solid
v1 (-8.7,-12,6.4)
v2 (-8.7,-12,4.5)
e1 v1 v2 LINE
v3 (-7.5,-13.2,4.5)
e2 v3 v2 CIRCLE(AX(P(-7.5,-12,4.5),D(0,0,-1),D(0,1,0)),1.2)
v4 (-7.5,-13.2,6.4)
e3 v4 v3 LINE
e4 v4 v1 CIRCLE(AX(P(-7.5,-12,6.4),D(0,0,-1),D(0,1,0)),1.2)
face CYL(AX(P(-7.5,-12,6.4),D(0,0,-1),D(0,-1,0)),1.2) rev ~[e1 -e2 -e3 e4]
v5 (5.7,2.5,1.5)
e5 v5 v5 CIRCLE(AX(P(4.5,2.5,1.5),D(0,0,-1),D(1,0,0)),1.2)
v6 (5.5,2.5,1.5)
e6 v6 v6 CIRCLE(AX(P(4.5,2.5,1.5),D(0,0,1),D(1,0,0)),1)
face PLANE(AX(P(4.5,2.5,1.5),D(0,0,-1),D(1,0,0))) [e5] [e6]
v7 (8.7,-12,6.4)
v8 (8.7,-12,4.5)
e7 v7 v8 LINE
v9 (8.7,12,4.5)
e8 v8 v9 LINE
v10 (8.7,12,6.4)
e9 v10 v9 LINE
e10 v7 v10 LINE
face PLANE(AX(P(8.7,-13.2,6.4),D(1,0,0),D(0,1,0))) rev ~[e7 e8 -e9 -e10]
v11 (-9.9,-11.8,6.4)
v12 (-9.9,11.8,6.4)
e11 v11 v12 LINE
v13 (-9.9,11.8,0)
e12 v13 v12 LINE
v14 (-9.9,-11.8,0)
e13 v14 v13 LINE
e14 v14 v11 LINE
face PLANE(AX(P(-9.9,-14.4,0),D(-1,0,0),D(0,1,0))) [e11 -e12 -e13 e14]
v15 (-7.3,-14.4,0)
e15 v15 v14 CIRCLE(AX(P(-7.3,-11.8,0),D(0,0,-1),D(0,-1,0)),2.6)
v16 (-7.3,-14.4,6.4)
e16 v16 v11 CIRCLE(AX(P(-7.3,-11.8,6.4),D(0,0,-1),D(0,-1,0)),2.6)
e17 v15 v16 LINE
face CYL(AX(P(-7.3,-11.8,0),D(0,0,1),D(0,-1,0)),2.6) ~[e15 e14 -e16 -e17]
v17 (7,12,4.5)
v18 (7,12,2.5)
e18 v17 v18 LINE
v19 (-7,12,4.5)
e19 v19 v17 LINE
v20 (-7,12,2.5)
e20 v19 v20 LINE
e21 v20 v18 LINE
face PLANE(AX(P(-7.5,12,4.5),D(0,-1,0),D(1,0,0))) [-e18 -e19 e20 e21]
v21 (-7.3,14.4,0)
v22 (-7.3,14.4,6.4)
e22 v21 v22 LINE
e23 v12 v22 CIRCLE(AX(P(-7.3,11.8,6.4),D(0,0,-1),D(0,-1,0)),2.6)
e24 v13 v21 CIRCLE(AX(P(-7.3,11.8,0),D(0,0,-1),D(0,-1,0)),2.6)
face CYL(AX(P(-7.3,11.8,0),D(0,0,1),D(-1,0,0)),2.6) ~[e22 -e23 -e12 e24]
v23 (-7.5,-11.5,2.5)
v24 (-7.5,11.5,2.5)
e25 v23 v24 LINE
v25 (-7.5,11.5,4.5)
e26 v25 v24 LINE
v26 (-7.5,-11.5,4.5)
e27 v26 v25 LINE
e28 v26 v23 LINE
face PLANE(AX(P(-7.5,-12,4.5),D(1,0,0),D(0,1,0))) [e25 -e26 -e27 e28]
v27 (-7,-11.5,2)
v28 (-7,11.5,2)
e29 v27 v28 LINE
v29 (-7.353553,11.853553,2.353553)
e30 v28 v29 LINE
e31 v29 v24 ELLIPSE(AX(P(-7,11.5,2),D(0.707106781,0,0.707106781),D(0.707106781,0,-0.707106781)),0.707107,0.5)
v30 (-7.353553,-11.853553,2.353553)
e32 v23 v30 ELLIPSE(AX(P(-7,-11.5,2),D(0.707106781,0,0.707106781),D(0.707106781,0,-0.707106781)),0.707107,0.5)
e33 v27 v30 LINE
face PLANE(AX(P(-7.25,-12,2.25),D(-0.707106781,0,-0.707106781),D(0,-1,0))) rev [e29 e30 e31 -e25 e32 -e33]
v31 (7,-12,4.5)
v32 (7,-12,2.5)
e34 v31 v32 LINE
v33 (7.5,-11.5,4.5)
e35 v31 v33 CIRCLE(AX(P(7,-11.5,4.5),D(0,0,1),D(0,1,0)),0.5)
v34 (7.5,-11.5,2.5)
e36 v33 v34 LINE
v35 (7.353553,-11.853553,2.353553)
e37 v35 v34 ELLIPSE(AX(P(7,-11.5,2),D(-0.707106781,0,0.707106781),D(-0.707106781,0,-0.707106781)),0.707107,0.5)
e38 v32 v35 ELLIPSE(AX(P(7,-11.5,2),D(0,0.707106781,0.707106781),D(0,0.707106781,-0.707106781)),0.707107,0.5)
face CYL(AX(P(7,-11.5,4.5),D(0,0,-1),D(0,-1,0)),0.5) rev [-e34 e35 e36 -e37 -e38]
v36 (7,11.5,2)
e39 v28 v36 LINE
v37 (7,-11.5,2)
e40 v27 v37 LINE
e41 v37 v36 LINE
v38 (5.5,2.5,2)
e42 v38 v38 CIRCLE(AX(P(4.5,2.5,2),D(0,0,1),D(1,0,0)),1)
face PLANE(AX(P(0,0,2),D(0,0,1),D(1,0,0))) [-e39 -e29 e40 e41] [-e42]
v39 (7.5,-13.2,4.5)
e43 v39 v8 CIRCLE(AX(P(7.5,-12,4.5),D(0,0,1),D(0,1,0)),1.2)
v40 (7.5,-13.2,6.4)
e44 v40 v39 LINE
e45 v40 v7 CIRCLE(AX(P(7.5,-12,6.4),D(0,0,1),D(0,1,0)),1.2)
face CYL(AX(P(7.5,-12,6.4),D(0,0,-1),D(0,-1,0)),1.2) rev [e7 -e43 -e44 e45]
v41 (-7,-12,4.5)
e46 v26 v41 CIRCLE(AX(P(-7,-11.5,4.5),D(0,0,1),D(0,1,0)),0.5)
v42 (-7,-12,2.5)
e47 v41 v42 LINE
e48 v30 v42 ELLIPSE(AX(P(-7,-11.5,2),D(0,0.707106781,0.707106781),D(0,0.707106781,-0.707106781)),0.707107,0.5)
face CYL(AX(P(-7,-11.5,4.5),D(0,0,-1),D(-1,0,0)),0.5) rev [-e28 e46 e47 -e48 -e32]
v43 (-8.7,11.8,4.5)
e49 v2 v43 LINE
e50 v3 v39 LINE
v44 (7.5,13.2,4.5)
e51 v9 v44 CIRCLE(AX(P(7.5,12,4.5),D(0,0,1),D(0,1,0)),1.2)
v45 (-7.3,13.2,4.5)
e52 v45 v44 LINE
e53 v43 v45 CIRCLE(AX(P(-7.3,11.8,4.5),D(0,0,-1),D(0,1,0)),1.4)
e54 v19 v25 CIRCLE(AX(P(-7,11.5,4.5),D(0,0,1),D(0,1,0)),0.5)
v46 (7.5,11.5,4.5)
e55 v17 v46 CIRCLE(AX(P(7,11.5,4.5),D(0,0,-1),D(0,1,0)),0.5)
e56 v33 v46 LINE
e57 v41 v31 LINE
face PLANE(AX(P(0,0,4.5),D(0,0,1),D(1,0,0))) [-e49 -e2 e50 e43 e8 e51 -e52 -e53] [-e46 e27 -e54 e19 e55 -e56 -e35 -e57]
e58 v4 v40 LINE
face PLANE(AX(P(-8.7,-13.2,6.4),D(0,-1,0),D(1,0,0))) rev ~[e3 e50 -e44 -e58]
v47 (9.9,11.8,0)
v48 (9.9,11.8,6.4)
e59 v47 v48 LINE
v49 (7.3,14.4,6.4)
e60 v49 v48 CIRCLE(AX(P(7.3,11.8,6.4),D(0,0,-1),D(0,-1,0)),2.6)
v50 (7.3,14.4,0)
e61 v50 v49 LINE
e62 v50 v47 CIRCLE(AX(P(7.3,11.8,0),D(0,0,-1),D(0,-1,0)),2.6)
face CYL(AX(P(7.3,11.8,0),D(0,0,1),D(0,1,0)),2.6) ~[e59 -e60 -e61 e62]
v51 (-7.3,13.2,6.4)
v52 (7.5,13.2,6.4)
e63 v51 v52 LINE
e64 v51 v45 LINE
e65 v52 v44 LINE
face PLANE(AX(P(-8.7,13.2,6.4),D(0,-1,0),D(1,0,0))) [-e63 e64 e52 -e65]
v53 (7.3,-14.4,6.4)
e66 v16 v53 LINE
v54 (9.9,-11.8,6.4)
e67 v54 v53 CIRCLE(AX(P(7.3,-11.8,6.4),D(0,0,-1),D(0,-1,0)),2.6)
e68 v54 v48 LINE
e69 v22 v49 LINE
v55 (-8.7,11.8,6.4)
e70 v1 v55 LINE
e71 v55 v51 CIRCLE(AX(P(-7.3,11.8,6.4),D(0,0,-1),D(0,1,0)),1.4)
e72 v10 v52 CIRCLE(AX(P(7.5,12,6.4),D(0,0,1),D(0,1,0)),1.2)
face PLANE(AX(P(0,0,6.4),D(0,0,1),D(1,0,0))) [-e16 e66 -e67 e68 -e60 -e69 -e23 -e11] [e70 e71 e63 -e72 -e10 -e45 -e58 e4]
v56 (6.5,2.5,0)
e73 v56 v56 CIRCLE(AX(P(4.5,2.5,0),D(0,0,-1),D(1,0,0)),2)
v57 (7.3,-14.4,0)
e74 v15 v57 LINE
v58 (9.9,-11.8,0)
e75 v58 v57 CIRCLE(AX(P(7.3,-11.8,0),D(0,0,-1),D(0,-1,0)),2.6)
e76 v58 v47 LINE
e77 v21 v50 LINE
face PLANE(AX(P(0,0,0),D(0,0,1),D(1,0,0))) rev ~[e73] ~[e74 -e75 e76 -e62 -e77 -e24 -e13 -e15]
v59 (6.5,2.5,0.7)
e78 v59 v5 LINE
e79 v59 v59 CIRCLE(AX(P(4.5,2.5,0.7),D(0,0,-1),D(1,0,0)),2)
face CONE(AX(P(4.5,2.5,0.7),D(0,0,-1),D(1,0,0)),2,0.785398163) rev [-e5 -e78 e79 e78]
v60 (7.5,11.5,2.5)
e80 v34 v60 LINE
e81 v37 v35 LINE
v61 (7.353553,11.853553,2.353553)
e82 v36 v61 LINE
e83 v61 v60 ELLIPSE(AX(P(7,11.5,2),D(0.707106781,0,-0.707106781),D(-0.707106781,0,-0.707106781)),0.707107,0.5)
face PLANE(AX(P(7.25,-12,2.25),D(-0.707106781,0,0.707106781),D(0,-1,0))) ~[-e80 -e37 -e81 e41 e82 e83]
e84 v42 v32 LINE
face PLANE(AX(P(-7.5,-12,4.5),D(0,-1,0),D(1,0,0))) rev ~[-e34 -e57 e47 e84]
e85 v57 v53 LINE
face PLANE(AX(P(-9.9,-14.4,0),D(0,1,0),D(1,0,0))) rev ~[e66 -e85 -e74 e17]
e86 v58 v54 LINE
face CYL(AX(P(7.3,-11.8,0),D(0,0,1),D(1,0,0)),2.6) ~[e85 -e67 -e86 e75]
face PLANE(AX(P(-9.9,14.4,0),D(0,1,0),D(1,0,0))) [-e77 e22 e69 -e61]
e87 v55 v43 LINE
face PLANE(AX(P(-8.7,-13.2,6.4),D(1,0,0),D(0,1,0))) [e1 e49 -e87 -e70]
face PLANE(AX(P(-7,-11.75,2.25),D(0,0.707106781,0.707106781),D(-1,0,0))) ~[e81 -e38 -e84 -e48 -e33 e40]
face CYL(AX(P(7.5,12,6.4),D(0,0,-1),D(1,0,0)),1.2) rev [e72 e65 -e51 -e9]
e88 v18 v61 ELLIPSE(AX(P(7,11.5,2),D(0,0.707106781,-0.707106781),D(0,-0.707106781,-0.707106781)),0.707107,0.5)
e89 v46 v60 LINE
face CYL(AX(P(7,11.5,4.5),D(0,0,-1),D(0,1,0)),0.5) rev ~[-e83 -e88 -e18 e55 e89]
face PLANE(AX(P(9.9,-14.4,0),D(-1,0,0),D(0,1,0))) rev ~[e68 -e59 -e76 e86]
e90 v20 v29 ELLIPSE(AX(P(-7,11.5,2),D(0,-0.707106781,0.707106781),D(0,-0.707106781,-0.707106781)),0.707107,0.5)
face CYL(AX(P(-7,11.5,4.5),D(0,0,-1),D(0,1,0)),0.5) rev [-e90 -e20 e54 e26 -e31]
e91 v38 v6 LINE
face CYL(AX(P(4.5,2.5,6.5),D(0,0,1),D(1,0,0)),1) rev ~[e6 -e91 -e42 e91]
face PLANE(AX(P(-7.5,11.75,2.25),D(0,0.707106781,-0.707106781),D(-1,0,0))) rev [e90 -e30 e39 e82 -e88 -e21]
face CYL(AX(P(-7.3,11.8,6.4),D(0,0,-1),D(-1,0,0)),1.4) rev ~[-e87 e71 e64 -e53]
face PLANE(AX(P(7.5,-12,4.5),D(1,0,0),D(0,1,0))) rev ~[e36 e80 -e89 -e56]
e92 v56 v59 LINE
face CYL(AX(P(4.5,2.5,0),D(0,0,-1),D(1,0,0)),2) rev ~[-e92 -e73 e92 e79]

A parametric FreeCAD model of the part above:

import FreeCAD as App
import Part
import Sketcher

V = App.Vector


def edges_at(feature, points):
    """Names of the edges that pass closest to the given points."""
    edges = feature.Shape.Edges
    near = lambda p: min(range(len(edges)), key=lambda i: edges[i].distToShape(Part.Vertex(*p))[0])
    return sorted({f"Edge{near(p) + 1}" for p in points})


def add_polygon(sketch, points):
    """Adds a closed chain of lines whose ends are joined by coincident constraints."""
    first, n = sketch.GeometryCount, len(points)
    for a, b in zip(points, points[1:] + points[:1]):
        sketch.addGeometry(Part.LineSegment(App.Vector(*a, 0), App.Vector(*b, 0)), False)
    for i in range(n):
        sketch.addConstraint(Sketcher.Constraint("Coincident", first + i, 2, first + (i + 1) % n, 1))

doc = App.newDocument("Part")
params = doc.addObject("Spreadsheet::Sheet", "Params")
for row, (alias, value) in enumerate([
    ("sketch1_width", "19.8 mm"),
    ("sketch1_height", "28.8 mm"),
    ("pad1_length", "6.4 mm"),
    ("sketch2_width", "17.4 mm"),
    ("sketch2_height", "26.4 mm"),
    ("pocket1_length", "1.9 mm"),
    ("sketch3_width", "15 mm"),
    ("sketch3_height", "24 mm"),
    ("pocket2_length", "2.5 mm"),
    ("sketch4_diameter", "2 mm"),
    ("pocket3_length", "6.5 mm"),
    ("chamfer_size", "0.5 mm"),
    ("chamfer2_size", "0.5 mm"),
    ("chamfer3_size", "0.5 mm"),
    ("chamfer4_size", "0.5 mm"),
    ("fillet_radius", "1.4 mm"),
    ("fillet2_radius", "0.5 mm"),
    ("fillet3_radius", "2.6 mm"),
    ("fillet4_radius", "0.5 mm"),
    ("fillet5_radius", "0.5 mm"),
    ("fillet6_radius", "0.5 mm"),
    ("fillet7_radius", "1.2 mm"),
    ("fillet8_radius", "1.2 mm"),
    ("fillet9_radius", "1.2 mm"),
    ("fillet10_radius", "2.6 mm"),
    ("fillet11_radius", "2.6 mm"),
    ("fillet12_radius", "2.6 mm"),
    ("sketch5_diameter", "4 mm"),
    ("pocket4_length", "1.5 mm"),
    ("chamfer5_size", "0.8 mm"),
], start=1):
    params.set(f"A{row}", alias)
    params.set(f"B{row}", "=" + value)
    params.setAlias(f"B{row}", alias)

body = doc.addObject("PartDesign::Body", "Body")

# Sketch on XY plane
sketch1 = body.newObject("Sketcher::SketchObject", "Sketch")
sketch1.AttachmentSupport = (doc.getObject("XY_Plane"), [""])
sketch1.MapMode = "FlatFace"
add_polygon(sketch1, [(-10, 14), (-10, -14), (10, -14), (10, 14)])  # lines 0-3
sketch1.addConstraint(Sketcher.Constraint("Vertical", 0))
sketch1.addConstraint(Sketcher.Constraint("Horizontal", 1))
sketch1.addConstraint(Sketcher.Constraint("Vertical", 2))
sketch1.addConstraint(Sketcher.Constraint("Horizontal", 3))
sketch1.addConstraint(Sketcher.Constraint("Symmetric", 0, 2, 2, 2, -1, 1))
sketch1.addConstraint(Sketcher.Constraint("DistanceX", 1, 1, 1, 2, 19.8))
sketch1.addConstraint(Sketcher.Constraint("DistanceY", 0, 2, 0, 1, 28.8))
sketch1.setExpression("Constraints[9]", "Params.sketch1_width")
sketch1.setExpression("Constraints[10]", "Params.sketch1_height")
pad1 = body.newObject("PartDesign::Pad", "Pad")
pad1.Profile = sketch1
pad1.setExpression("Length", "Params.pad1_length")

# Sketch on XY plane
sketch2 = body.newObject("Sketcher::SketchObject", "Sketch001")
sketch2.AttachmentSupport = (doc.getObject("XY_Plane"), [""])
sketch2.MapMode = "FlatFace"
sketch2.AttachmentOffset = App.Placement(V(0, 0, 6.4), App.Rotation())
add_polygon(sketch2, [(-9, 13), (-9, -13), (9, -13), (9, 13)])  # lines 0-3
sketch2.addConstraint(Sketcher.Constraint("Vertical", 0))
sketch2.addConstraint(Sketcher.Constraint("Horizontal", 1))
sketch2.addConstraint(Sketcher.Constraint("Vertical", 2))
sketch2.addConstraint(Sketcher.Constraint("Horizontal", 3))
sketch2.addConstraint(Sketcher.Constraint("Symmetric", 0, 2, 2, 2, -1, 1))
sketch2.addConstraint(Sketcher.Constraint("DistanceX", 1, 1, 1, 2, 17.4))
sketch2.addConstraint(Sketcher.Constraint("DistanceY", 0, 2, 0, 1, 26.4))
sketch2.setExpression("Constraints[9]", "Params.sketch2_width")
sketch2.setExpression("Constraints[10]", "Params.sketch2_height")
pocket1 = body.newObject("PartDesign::Pocket", "Pocket")
pocket1.Profile = sketch2
pocket1.setExpression("Length", "Params.pocket1_length")

# Sketch on XY plane
sketch3 = body.newObject("Sketcher::SketchObject", "Sketch002")
sketch3.AttachmentSupport = (doc.getObject("XY_Plane"), [""])
sketch3.MapMode = "FlatFace"
sketch3.AttachmentOffset = App.Placement(V(0, 0, 4.5), App.Rotation())
add_polygon(sketch3, [(-8, 12), (-8, -12), (8, -12), (8, 12)])  # lines 0-3
sketch3.addConstraint(Sketcher.Constraint("Vertical", 0))
sketch3.addConstraint(Sketcher.Constraint("Horizontal", 1))
sketch3.addConstraint(Sketcher.Constraint("Vertical", 2))
sketch3.addConstraint(Sketcher.Constraint("Horizontal", 3))
sketch3.addConstraint(Sketcher.Constraint("Symmetric", 0, 2, 2, 2, -1, 1))
sketch3.addConstraint(Sketcher.Constraint("DistanceX", 1, 1, 1, 2, 15.0))
sketch3.addConstraint(Sketcher.Constraint("DistanceY", 0, 2, 0, 1, 24.0))
sketch3.setExpression("Constraints[9]", "Params.sketch3_width")
sketch3.setExpression("Constraints[10]", "Params.sketch3_height")
pocket2 = body.newObject("PartDesign::Pocket", "Pocket001")
pocket2.Profile = sketch3
pocket2.setExpression("Length", "Params.pocket2_length")

# Sketch on XY plane
sketch4 = body.newObject("Sketcher::SketchObject", "Sketch003")
sketch4.AttachmentSupport = (doc.getObject("XY_Plane"), [""])
sketch4.MapMode = "FlatFace"
sketch4.AttachmentOffset = App.Placement(V(0, 0, 6.5), App.Rotation())
sketch4.addGeometry(Part.Circle(V(4.5, 2.5, 0), V(0, 0, 1), 1), False)
sketch4.addConstraint(Sketcher.Constraint("Diameter", 0, 2.0))
sketch4.addConstraint(Sketcher.Constraint("DistanceX", -1, 1, 0, 3, 4.5))
sketch4.addConstraint(Sketcher.Constraint("DistanceY", -1, 1, 0, 3, 2.5))
sketch4.setExpression("Constraints[0]", "Params.sketch4_diameter")
pocket3 = body.newObject("PartDesign::Pocket", "Pocket002")
pocket3.Profile = sketch4
pocket3.setExpression("Length", "Params.pocket3_length")
doc.recompute()

chamfer = body.newObject("PartDesign::Chamfer", "Chamfer")
chamfer.Base = (pocket3, edges_at(pocket3, [(0, 12, 2)]))
chamfer.setExpression("Size", "Params.chamfer_size")
doc.recompute()

chamfer2 = body.newObject("PartDesign::Chamfer", "Chamfer001")
chamfer2.Base = (chamfer, edges_at(chamfer, [(-7.5, -0.25, 2)]))
chamfer2.setExpression("Size", "Params.chamfer2_size")
doc.recompute()

chamfer3 = body.newObject("PartDesign::Chamfer", "Chamfer002")
chamfer3.Base = (chamfer2, edges_at(chamfer2, [(7.5, -0.25, 2)]))
chamfer3.setExpression("Size", "Params.chamfer3_size")
doc.recompute()

chamfer4 = body.newObject("PartDesign::Chamfer", "Chamfer003")
chamfer4.Base = (chamfer3, edges_at(chamfer3, [(0, -12, 2)]))
chamfer4.setExpression("Size", "Params.chamfer4_size")
doc.recompute()

fillet = body.newObject("PartDesign::Fillet", "Fillet")
fillet.Base = (chamfer4, edges_at(chamfer4, [(-8.7, 13.2, 5.45)]))
fillet.setExpression("Radius", "Params.fillet_radius")
doc.recompute()

fillet2 = body.newObject("PartDesign::Fillet", "Fillet001")
fillet2.Base = (fillet, edges_at(fillet, [(-7.5, 12, 3.5)]))
fillet2.setExpression("Radius", "Params.fillet2_radius")
doc.recompute()

fillet3 = body.newObject("PartDesign::Fillet", "Fillet002")
fillet3.Base = (fillet2, edges_at(fillet2, [(-9.9, 14.4, 3.2)]))
fillet3.setExpression("Radius", "Params.fillet3_radius")
doc.recompute()

fillet4 = body.newObject("PartDesign::Fillet", "Fillet003")
fillet4.Base = (fillet3, edges_at(fillet3, [(7.5, 12, 3.5)]))
fillet4.setExpression("Radius", "Params.fillet4_radius")
doc.recompute()

fillet5 = body.newObject("PartDesign::Fillet", "Fillet004")
fillet5.Base = (fillet4, edges_at(fillet4, [(-7.5, -12, 3.5)]))
fillet5.setExpression("Radius", "Params.fillet5_radius")
doc.recompute()

fillet6 = body.newObject("PartDesign::Fillet", "Fillet005")
fillet6.Base = (fillet5, edges_at(fillet5, [(7.5, -12, 3.5)]))
fillet6.setExpression("Radius", "Params.fillet6_radius")
doc.recompute()

fillet7 = body.newObject("PartDesign::Fillet", "Fillet006")
fillet7.Base = (fillet6, edges_at(fillet6, [(8.7, -13.2, 5.45)]))
fillet7.setExpression("Radius", "Params.fillet7_radius")
doc.recompute()

fillet8 = body.newObject("PartDesign::Fillet", "Fillet007")
fillet8.Base = (fillet7, edges_at(fillet7, [(-8.7, -13.2, 5.45)]))
fillet8.setExpression("Radius", "Params.fillet8_radius")
doc.recompute()

fillet9 = body.newObject("PartDesign::Fillet", "Fillet008")
fillet9.Base = (fillet8, edges_at(fillet8, [(8.7, 13.2, 5.45)]))
fillet9.setExpression("Radius", "Params.fillet9_radius")
doc.recompute()

fillet10 = body.newObject("PartDesign::Fillet", "Fillet009")
fillet10.Base = (fillet9, edges_at(fillet9, [(9.9, 14.4, 3.2)]))
fillet10.setExpression("Radius", "Params.fillet10_radius")
doc.recompute()

fillet11 = body.newObject("PartDesign::Fillet", "Fillet010")
fillet11.Base = (fillet10, edges_at(fillet10, [(9.9, -14.4, 3.2)]))
fillet11.setExpression("Radius", "Params.fillet11_radius")
doc.recompute()

fillet12 = body.newObject("PartDesign::Fillet", "Fillet011")
fillet12.Base = (fillet11, edges_at(fillet11, [(-9.9, -14.4, 3.2)]))
fillet12.setExpression("Radius", "Params.fillet12_radius")

# Sketch on XY plane
sketch5 = body.newObject("Sketcher::SketchObject", "Sketch004")
sketch5.AttachmentSupport = (doc.getObject("XY_Plane"), [""])
sketch5.MapMode = "FlatFace"
sketch5.addGeometry(Part.Circle(V(4.5, 2.5, 0), V(0, 0, 1), 2), False)
sketch5.addConstraint(Sketcher.Constraint("Diameter", 0, 4.0))
sketch5.addConstraint(Sketcher.Constraint("DistanceX", -1, 1, 0, 3, 4.5))
sketch5.addConstraint(Sketcher.Constraint("DistanceY", -1, 1, 0, 3, 2.5))
sketch5.setExpression("Constraints[0]", "Params.sketch5_diameter")
pocket4 = body.newObject("PartDesign::Pocket", "Pocket003")
pocket4.Profile = sketch5
pocket4.setExpression("Length", "Params.pocket4_length")
pocket4.Reversed = True
doc.recompute()

chamfer5 = body.newObject("PartDesign::Chamfer", "Chamfer004")
chamfer5.Base = (pocket4, edges_at(pocket4, [(2.5, 2.5, 1.5)]))
chamfer5.setExpression("Size", "Params.chamfer5_size")

doc.recompute()
